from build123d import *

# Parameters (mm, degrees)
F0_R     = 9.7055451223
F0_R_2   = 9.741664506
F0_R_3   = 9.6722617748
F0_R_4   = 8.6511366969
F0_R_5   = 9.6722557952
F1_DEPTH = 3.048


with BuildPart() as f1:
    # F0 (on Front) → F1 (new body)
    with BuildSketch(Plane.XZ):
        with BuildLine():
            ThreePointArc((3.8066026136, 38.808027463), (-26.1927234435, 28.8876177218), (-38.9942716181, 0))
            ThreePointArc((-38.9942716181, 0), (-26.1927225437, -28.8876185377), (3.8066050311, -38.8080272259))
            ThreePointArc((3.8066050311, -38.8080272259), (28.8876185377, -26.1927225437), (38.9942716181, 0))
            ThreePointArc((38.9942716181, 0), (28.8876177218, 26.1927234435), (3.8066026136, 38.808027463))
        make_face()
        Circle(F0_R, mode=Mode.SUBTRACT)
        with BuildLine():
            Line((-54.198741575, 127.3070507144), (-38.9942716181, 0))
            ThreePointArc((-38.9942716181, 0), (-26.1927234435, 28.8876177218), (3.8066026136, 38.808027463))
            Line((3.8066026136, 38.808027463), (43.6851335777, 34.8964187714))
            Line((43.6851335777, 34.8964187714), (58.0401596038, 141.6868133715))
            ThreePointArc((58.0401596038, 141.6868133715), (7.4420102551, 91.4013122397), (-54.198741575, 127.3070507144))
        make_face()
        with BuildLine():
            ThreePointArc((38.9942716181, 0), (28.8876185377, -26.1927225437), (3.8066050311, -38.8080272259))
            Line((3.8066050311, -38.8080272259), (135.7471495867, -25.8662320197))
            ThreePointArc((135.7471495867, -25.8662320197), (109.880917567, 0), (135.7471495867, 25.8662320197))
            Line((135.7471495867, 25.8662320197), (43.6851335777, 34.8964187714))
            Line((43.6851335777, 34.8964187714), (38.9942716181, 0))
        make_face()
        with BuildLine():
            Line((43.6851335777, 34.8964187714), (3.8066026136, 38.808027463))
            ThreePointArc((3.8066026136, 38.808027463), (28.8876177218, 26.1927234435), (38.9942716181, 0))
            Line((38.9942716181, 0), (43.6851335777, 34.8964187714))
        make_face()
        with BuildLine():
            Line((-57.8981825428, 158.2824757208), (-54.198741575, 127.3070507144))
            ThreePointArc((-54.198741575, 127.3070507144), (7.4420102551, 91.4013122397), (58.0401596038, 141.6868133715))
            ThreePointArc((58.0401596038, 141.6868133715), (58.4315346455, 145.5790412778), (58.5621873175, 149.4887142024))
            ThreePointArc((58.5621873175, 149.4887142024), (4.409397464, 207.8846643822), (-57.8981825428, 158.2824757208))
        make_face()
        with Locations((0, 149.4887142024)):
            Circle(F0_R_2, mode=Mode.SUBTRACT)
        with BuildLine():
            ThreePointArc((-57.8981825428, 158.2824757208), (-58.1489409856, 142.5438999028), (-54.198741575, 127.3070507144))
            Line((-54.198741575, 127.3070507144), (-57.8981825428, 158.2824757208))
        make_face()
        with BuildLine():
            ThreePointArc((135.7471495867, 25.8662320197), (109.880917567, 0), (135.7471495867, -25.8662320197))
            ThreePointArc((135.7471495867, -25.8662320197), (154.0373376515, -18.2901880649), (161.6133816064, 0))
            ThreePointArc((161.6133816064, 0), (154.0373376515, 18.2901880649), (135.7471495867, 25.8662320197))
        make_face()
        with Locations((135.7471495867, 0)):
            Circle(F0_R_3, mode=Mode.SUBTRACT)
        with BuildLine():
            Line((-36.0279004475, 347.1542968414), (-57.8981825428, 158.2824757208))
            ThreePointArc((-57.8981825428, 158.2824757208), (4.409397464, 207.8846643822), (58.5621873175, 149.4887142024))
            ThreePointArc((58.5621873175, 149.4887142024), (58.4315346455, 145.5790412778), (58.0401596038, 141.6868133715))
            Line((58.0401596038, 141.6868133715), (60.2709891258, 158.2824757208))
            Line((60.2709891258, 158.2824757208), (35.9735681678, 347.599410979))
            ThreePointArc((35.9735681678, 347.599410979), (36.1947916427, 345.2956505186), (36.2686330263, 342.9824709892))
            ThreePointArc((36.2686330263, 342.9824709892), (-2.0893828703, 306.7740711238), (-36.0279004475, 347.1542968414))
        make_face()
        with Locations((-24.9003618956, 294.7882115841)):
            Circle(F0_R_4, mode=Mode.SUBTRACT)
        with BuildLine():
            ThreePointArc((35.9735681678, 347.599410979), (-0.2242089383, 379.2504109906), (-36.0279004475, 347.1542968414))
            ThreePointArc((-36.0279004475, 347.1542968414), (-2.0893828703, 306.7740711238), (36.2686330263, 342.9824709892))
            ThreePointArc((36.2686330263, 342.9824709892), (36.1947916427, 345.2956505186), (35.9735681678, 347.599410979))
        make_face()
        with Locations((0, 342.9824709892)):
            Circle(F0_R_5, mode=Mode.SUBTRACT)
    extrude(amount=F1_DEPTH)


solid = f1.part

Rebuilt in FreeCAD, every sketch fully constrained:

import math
import FreeCAD as App
import Part
import Sketcher

V = App.Vector
Q = App.Units.Quantity

doc = App.newDocument("Part")
body = doc.addObject("PartDesign::Body", "Body")

# Sketch on XZ plane
sketch1 = body.newObject("Sketcher::SketchObject", "Sketch")
sketch1.AttachmentSupport = (doc.getObject("XZ_Plane"), [""])
sketch1.MapMode = "FlatFace"
sketch1.addGeometry([
    Part.LineSegment(V(135.74715, 25.866232, 0), V(43.685134, 34.896419, 0)),  # 0
    Part.LineSegment(V(43.685134, 34.896419, 0), V(58.04016, 141.686813, 0)),  # 1
    Part.LineSegment(V(58.04016, 141.686813, 0), V(60.270989, 158.282476, 0)),  # 2
    Part.LineSegment(V(60.270989, 158.282476, 0), V(35.973568, 347.599411, 0)),  # 3
    Part.ArcOfCircle(Part.Circle(V(0, 342.982471, 0), V(0, 0, 1), 36.268633), math.radians(7.313507), math.radians(173.394891)),  # 4
    Part.LineSegment(V(-36.0279, 347.154297, 0), V(-57.898183, 158.282476, 0)),  # 5
    Part.ArcOfCircle(Part.Circle(V(0, 149.488714, 0), V(0, 0, 1), 58.562187), math.radians(171.363738), math.radians(202.257582)),  # 6
    Part.LineSegment(V(-54.198742, 127.307051, 0), V(-38.994272, 0, 0)),  # 7
    Part.ArcOfCircle(Part.Circle(V(0, 0, 0), V(0, 0, 1), 38.994272), math.radians(180), math.radians(275.602113)),  # 8
    Part.LineSegment(V(3.806605, -38.808027, 0), V(135.74715, -25.866232, 0)),  # 9
    Part.ArcOfCircle(Part.Circle(V(135.74715, 0, 0), V(0, 0, 1), 25.866232), math.radians(-90), math.radians(0)),  # 10
    Part.ArcOfCircle(Part.Circle(V(135.74715, 0, 0), V(0, 0, 1), 25.866232), math.radians(0), math.radians(90)),  # 11
    Part.Circle(V(0, 0, 0), V(0, 0, 1), 9.705545),  # 12
    Part.Circle(V(0, 149.488714, 0), V(0, 0, 1), 9.741665),  # 13
    Part.Circle(V(135.74715, 0, 0), V(0, 0, 1), 9.672262),  # 14
    Part.Circle(V(-24.900362, 294.788212, 0), V(0, 0, 1), 8.651137),  # 15
    Part.Circle(V(0, 342.982471, 0), V(0, 0, 1), 9.672256),  # 16
], False)
sketch1.addConstraint([
    Sketcher.Constraint("Coincident", 0, 2, 1, 1),
    Sketcher.Constraint("Coincident", 1, 2, 2, 1),
    Sketcher.Constraint("Coincident", 2, 2, 3, 1),
    Sketcher.Constraint("Coincident", 3, 2, 4, 1),
    Sketcher.Constraint("Coincident", 4, 2, 5, 1),
    Sketcher.Constraint("Coincident", 5, 2, 6, 1),
    Sketcher.Constraint("Coincident", 6, 2, 7, 1),
    Sketcher.Constraint("Coincident", 7, 2, 8, 1),
    Sketcher.Constraint("Coincident", 8, 2, 9, 1),
    Sketcher.Constraint("Coincident", 9, 2, 10, 1),
    Sketcher.Constraint("Coincident", 10, 2, 11, 1),
    Sketcher.Constraint("Coincident", 11, 2, 0, 1),
    Sketcher.Constraint("Coincident", 8, 3, -1, 1),
    Sketcher.Constraint("Coincident", 12, 3, -1, 1),
    Sketcher.Constraint("Coincident", 11, 3, 10, 3),
    Sketcher.Constraint("Coincident", 13, 3, 6, 3),
    Sketcher.Constraint("Coincident", 14, 3, 10, 3),
    Sketcher.Constraint("Coincident", 16, 3, 4, 3),
    Sketcher.Constraint("PointOnObject", 4, 3, -2),
    Sketcher.Constraint("PointOnObject", 6, 3, -2),
    Sketcher.Constraint("PointOnObject", 10, 3, -1),
    Sketcher.Constraint("PointOnObject", 7, 2, -1),
    Sketcher.Constraint("PointOnObject", 10, 2, -1),
    Sketcher.Constraint("Diameter", 12, 19.41109),
    Sketcher.Constraint("Diameter", 13, 19.483329),
    Sketcher.Constraint("Diameter", 16, 19.344512),
    Sketcher.Constraint("Radius", 8, 38.994272),
    Sketcher.Constraint("Diameter", 14, 19.344524),
    Sketcher.Constraint("Diameter", 15, 17.302273),
    Sketcher.Constraint("Radius", 4, 36.268633),
    Sketcher.Constraint("Radius", 6, 58.562187),
    Sketcher.Constraint("Radius", 10, 25.866232),
    Sketcher.Constraint("DistanceX", 4, 2, -1, 1, 36.0279),
    Sketcher.Constraint("DistanceY", 1, 2, 6, 3, 7.801901),
    Sketcher.Constraint("DistanceY", 15, 3, 3, 2, 52.811199),
    Sketcher.Constraint("DistanceX", 6, 2, 1, 2, 112.238901),
    Sketcher.Constraint("Distance", 5, 190.133832),
    Sketcher.Constraint("DistanceY", -1, 1, 4, 3, 342.982471),
    Sketcher.Constraint("DistanceX", -1, 1, 10, 3, 135.74715),
    Sketcher.Constraint("DistanceX", 15, 3, -1, 1, 24.900362),
    Sketcher.Constraint("DistanceY", -1, 1, 15, 3, 294.788212),
    Sketcher.Constraint("DistanceY", -1, 1, 0, 2, 34.896419),
    Sketcher.Constraint("DistanceX", -1, 1, 1, 2, 58.04016),
    Sketcher.Constraint("DistanceX", -1, 1, 2, 2, 60.270989),
    Sketcher.Constraint("DistanceY", -1, 1, 6, 2, 127.307051),
    Sketcher.Constraint("DistanceX", -1, 1, 9, 2, 135.74715),
    Sketcher.Constraint("DistanceX", -1, 1, 11, 2, 135.74715),
    Sketcher.Constraint("DistanceY", 6, 3, 2, 2, 8.793762),
    Sketcher.Constraint("DistanceX", 8, 2, 0, 2, 39.878529),
    Sketcher.Constraint("DistanceX", 0, 2, 10, 2, 117.928248),
])
pad1 = body.newObject("PartDesign::Pad", "Pad")
pad1.Profile = sketch1
pad1.Length = Q("0.12 in")

doc.recompute()
